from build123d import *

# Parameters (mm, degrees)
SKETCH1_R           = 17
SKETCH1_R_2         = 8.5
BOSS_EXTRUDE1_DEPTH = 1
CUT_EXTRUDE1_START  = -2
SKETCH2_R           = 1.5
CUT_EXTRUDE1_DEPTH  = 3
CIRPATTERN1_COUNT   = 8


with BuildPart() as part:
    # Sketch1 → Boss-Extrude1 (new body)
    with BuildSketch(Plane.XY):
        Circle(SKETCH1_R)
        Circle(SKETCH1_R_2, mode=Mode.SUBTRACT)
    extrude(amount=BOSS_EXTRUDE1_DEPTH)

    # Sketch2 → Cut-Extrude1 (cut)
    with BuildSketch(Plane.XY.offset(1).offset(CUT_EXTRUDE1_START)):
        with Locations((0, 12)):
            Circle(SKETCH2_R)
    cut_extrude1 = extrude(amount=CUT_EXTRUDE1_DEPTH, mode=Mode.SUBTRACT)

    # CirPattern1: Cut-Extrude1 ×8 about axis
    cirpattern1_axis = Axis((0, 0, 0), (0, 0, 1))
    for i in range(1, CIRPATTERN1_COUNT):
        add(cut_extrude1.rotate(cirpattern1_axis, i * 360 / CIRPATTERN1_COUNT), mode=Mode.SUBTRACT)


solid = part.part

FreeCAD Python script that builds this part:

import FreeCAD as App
import Part
import Sketcher
from FreeCAD import Vector

doc = App.newDocument("Part")
body = doc.addObject("PartDesign::Body", "Body")

# Sketch on XY plane
sketch1 = body.newObject("Sketcher::SketchObject", "Sketch")
sketch1.AttachmentSupport = (doc.getObject("XY_Plane"), [""])
sketch1.MapMode = "FlatFace"
sketch1.addGeometry(Part.Circle(Vector(0, 0, 0), Vector(0, 0, 1), 17), False)
sketch1.addGeometry(Part.Circle(Vector(0, 0, 0), Vector(0, 0, 1), 8), False)
sketch1.addConstraint(Sketcher.Constraint("Coincident", 0, 3, -1, 1))
sketch1.addConstraint(Sketcher.Constraint("Coincident", 1, 3, -1, 1))
sketch1.addConstraint(Sketcher.Constraint("Diameter", 0, 34.0))
sketch1.addConstraint(Sketcher.Constraint("Diameter", 1, 17.0))
pad1 = body.newObject("PartDesign::Pad", "Pad")
pad1.Profile = sketch1
pad1.Length = 1

# Sketch on XY plane
sketch2 = body.newObject("Sketcher::SketchObject", "Sketch001")
sketch2.AttachmentSupport = (doc.getObject("XY_Plane"), [""])
sketch2.MapMode = "FlatFace"
sketch2.AttachmentOffset = App.Placement(Vector(0, 0, -1), App.Rotation())
sketch2.addGeometry(Part.Circle(Vector(0, 12, 0), Vector(0, 0, 1), 1.5), False)
sketch2.addConstraint(Sketcher.Constraint("PointOnObject", 0, 3, -2))
sketch2.addConstraint(Sketcher.Constraint("Diameter", 0, 3.0))
sketch2.addConstraint(Sketcher.Constraint("DistanceY", -1, 1, 0, 3, 12.0))
pocket1 = body.newObject("PartDesign::Pocket", "Pocket")
pocket1.Profile = sketch2
pocket1.Length = 3
pocket1.Reversed = True
doc.recompute()

polarpattern = body.newObject("PartDesign::PolarPattern", "PolarPattern")
polarpattern.Originals = [pocket1]
polarpattern.Axis = (doc.getObject("Z_Axis"), [""])
polarpattern.Angle = 360
polarpattern.Occurrences = 8
body.Tip = polarpattern

doc.recompute()
